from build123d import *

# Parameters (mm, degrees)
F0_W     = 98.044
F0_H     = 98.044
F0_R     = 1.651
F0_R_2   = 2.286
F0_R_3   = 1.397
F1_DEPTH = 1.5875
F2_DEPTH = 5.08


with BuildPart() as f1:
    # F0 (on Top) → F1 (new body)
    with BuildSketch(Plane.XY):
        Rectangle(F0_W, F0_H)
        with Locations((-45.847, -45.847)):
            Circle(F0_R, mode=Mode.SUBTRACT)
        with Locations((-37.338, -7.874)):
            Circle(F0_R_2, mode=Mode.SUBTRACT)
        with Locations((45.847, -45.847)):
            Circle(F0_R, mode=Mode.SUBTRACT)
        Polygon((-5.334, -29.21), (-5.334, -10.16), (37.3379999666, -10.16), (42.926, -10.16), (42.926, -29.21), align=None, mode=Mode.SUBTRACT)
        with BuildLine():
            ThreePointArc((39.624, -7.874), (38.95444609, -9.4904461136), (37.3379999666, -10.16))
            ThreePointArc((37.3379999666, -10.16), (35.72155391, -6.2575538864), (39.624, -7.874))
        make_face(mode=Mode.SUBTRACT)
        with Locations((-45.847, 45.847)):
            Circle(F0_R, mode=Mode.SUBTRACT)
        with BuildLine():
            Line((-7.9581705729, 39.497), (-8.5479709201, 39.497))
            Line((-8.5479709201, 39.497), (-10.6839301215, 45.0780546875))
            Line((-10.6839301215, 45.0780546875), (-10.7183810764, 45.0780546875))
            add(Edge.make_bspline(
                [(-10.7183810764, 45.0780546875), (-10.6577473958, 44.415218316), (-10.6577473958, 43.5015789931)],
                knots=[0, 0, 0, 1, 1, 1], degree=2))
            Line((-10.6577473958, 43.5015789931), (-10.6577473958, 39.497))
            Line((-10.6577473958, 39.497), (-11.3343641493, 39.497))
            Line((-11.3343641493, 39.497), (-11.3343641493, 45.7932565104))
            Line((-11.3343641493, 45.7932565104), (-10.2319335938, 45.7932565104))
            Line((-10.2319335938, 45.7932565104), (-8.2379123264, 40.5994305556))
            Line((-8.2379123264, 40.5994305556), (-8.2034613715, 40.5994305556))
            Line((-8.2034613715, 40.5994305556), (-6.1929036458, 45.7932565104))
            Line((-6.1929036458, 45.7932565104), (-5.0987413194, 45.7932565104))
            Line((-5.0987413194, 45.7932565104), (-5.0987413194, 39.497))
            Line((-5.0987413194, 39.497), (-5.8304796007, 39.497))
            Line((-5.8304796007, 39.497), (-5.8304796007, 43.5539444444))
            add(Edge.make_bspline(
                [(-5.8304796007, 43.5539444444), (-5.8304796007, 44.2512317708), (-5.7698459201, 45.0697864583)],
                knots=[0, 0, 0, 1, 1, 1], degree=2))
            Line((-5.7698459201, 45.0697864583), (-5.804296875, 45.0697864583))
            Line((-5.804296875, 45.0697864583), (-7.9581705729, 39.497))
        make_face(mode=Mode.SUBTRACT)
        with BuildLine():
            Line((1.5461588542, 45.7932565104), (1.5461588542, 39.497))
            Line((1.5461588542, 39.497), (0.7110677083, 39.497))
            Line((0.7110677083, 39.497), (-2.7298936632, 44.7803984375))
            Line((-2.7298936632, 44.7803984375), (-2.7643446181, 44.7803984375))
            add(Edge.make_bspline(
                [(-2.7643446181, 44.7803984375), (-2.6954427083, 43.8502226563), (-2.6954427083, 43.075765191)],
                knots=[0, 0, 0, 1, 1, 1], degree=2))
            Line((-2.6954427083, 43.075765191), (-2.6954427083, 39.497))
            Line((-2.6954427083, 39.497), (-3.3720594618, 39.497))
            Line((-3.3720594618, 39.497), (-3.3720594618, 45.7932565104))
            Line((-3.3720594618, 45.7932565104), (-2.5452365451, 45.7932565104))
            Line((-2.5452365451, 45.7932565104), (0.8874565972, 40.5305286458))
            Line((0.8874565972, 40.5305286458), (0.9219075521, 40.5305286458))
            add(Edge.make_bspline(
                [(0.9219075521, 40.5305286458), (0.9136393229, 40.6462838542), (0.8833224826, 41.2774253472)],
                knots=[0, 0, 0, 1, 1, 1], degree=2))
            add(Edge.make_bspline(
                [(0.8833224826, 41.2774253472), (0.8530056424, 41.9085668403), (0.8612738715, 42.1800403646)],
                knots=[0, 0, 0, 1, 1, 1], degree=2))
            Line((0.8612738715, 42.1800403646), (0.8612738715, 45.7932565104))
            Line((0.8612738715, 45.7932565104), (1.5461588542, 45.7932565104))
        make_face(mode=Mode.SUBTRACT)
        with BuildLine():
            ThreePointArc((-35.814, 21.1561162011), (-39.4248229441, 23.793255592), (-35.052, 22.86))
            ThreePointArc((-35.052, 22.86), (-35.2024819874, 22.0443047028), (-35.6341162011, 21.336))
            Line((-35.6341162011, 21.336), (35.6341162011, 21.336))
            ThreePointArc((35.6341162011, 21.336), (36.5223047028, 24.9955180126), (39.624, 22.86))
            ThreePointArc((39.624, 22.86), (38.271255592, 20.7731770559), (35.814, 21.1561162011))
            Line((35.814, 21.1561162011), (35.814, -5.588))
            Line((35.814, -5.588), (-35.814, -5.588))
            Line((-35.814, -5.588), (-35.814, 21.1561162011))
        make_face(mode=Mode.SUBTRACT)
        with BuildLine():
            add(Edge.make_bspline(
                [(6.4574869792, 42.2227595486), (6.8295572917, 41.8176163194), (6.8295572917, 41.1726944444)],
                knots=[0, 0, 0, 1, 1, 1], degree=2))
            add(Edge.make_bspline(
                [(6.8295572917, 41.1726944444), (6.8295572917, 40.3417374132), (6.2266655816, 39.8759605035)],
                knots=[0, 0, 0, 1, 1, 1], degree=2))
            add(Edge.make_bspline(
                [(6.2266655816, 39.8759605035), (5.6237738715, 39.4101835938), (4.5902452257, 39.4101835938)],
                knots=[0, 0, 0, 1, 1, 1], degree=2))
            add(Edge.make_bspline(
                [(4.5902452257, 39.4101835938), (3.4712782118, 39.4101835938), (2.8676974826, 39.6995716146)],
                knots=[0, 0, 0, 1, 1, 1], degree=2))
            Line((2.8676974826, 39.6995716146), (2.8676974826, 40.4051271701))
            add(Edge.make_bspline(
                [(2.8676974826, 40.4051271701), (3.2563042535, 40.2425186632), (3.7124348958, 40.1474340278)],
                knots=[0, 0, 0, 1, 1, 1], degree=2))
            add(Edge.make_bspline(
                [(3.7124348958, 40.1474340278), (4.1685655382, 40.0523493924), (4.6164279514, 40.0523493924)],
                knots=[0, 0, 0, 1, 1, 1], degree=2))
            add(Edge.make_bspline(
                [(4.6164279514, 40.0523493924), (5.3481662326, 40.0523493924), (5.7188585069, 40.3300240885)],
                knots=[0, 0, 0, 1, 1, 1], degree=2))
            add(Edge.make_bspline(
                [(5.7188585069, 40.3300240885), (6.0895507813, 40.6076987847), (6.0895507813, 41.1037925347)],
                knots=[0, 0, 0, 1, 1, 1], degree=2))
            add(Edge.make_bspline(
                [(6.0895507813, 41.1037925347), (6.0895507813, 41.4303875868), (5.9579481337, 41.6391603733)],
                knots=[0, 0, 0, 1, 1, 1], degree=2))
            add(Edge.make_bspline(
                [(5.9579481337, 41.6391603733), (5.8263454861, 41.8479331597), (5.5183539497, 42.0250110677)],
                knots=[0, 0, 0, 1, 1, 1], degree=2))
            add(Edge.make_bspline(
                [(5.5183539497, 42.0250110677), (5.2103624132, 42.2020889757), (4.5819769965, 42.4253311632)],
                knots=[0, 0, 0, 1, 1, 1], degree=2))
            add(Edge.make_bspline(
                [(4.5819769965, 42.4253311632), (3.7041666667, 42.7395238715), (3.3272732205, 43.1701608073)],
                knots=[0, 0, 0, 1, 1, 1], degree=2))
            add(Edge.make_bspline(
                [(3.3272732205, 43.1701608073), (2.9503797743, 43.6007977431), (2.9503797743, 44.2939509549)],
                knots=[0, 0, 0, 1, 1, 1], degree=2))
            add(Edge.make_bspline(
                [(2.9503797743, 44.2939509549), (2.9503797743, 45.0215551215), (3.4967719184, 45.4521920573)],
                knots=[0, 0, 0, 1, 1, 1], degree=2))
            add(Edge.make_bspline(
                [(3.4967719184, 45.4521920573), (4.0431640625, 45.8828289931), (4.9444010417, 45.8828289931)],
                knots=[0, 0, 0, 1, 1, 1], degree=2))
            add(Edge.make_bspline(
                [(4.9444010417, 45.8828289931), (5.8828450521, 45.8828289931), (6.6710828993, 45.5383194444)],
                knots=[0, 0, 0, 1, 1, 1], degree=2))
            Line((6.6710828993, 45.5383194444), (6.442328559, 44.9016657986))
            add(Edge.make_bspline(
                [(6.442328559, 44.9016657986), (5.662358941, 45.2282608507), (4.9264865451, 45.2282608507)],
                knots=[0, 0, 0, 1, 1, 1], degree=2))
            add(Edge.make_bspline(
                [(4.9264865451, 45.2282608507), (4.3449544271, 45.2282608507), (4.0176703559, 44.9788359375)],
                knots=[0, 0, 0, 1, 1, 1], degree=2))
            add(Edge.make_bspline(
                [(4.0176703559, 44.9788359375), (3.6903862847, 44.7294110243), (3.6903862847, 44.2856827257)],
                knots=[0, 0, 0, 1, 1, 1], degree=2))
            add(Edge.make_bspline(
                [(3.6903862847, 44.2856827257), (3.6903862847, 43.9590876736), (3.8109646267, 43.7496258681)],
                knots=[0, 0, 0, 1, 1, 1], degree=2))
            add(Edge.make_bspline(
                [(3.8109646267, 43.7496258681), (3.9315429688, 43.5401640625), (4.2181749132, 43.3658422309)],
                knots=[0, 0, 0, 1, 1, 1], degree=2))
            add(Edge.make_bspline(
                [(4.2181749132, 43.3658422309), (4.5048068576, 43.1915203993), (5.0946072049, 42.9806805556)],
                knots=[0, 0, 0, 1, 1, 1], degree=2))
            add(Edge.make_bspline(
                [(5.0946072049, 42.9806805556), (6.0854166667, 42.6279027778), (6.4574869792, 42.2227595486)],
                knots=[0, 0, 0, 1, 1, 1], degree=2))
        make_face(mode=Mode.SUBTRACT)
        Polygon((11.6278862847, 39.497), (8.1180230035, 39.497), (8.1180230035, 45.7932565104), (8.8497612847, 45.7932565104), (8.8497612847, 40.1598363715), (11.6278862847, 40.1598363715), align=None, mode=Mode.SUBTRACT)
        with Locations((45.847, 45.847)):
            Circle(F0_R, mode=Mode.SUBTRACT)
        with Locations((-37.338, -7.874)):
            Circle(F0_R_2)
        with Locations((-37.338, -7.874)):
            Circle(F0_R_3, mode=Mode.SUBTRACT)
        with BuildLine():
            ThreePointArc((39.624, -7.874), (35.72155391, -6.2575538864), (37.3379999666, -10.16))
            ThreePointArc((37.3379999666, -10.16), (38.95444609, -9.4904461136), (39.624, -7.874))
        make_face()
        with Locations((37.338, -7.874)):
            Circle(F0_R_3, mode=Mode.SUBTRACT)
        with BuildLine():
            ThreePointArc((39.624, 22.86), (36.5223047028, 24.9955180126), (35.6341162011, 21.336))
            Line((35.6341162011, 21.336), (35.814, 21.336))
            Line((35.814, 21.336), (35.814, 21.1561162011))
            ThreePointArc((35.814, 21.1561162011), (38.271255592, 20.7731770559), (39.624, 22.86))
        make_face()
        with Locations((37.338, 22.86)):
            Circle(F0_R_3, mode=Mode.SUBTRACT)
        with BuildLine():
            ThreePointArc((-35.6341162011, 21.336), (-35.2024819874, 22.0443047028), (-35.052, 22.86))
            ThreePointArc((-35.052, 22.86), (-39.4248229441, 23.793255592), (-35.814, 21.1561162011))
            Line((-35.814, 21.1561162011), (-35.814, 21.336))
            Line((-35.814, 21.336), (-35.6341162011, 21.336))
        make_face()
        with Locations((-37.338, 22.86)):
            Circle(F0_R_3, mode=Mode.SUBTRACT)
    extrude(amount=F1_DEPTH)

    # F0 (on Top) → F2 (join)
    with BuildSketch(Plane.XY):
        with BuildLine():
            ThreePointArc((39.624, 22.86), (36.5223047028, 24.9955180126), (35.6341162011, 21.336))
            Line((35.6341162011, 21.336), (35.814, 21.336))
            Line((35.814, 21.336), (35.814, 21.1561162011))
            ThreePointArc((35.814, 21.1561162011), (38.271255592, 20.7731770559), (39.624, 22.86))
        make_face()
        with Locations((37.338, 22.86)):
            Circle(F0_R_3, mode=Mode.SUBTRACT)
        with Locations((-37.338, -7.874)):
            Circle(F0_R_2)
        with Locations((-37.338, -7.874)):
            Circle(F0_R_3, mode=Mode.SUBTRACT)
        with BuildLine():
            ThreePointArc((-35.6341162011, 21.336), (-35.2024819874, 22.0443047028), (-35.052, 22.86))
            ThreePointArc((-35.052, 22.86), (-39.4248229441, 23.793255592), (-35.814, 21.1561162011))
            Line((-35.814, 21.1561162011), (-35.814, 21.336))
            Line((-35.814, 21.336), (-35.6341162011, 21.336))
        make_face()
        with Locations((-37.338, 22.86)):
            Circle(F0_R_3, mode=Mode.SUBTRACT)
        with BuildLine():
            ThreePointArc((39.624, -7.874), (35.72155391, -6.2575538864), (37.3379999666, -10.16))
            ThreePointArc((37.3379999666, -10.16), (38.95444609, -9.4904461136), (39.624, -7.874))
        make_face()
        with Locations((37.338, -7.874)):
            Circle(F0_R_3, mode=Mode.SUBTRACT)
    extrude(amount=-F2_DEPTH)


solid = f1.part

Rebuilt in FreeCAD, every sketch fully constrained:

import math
import FreeCAD as App
import Part
import Sketcher

V = App.Vector
Q = App.Units.Quantity

doc = App.newDocument("Part")
body = doc.addObject("PartDesign::Body", "Body")

sketch1 = body.newObject("Sketcher::SketchObject", "Sketch")
sketch1.AttachmentSupport = (doc.getObject("XY_Plane"), [""])
sketch1.MapMode = "FlatFace"
sketch1.addGeometry(Part.LineSegment(V(-49.022, 49.022, 0), V(-49.022, -49.022, 0)), False)
sketch1.addGeometry(Part.LineSegment(V(-49.022, -49.022, 0), V(49.022, -49.022, 0)), False)
sketch1.addGeometry(Part.LineSegment(V(49.022, -49.022, 0), V(49.022, 49.022, 0)), False)
sketch1.addGeometry(Part.LineSegment(V(49.022, 49.022, 0), V(-49.022, 49.022, 0)), False)
sketch1.addGeometry(Part.Circle(V(-45.847, -45.847, 0), V(0, 0, 1), 1.651), False)
sketch1.addGeometry(Part.Circle(V(-37.338, -7.874, 0), V(0, 0, 1), 1.397), False)
sketch1.addGeometry(Part.Circle(V(45.847, -45.847, 0), V(0, 0, 1), 1.651), False)
sketch1.addGeometry(Part.LineSegment(V(-5.334, -29.21, 0), V(-5.334, -10.16, 0)), False)
sketch1.addGeometry(Part.LineSegment(V(-5.334, -10.16, 0), V(42.926, -10.16, 0)), False)
sketch1.addGeometry(Part.LineSegment(V(42.926, -10.16, 0), V(42.926, -29.21, 0)), False)
sketch1.addGeometry(Part.LineSegment(V(42.926, -29.21, 0), V(-5.334, -29.21, 0)), False)
sketch1.addGeometry(Part.Circle(V(37.338, -7.874, 0), V(0, 0, 1), 1.397), False)
sketch1.addGeometry(Part.Circle(V(-37.338, 22.86, 0), V(0, 0, 1), 1.397), False)
sketch1.addGeometry(Part.Circle(V(-45.847, 45.847, 0), V(0, 0, 1), 1.651), False)
sketch1.addGeometry(Part.LineSegment(V(-5.804297, 45.069786, 0), V(-7.958171, 39.497, 0)), False)
sketch1.addGeometry(Part.LineSegment(V(-7.958171, 39.497, 0), V(-8.547971, 39.497, 0)), False)
sketch1.addGeometry(Part.LineSegment(V(-8.547971, 39.497, 0), V(-10.68393, 45.078055, 0)), False)
sketch1.addGeometry(Part.LineSegment(V(-10.68393, 45.078055, 0), V(-10.718381, 45.078055, 0)), False)
sketch1.addGeometry(Part.BSplineCurve([V(-10.718381, 45.078055, 0), V(-10.657747, 44.415218, 0), V(-10.657747, 43.501579, 0)], [3, 3], [0, 1], False, 2, [1, 1, 1], False), False)
sketch1.addGeometry(Part.LineSegment(V(-10.657747, 43.501579, 0), V(-10.657747, 39.497, 0)), False)
sketch1.addGeometry(Part.LineSegment(V(-10.657747, 39.497, 0), V(-11.334364, 39.497, 0)), False)
sketch1.addGeometry(Part.LineSegment(V(-11.334364, 39.497, 0), V(-11.334364, 45.793257, 0)), False)
sketch1.addGeometry(Part.LineSegment(V(-11.334364, 45.793257, 0), V(-10.231934, 45.793257, 0)), False)
sketch1.addGeometry(Part.LineSegment(V(-10.231934, 45.793257, 0), V(-8.237912, 40.599431, 0)), False)
sketch1.addGeometry(Part.LineSegment(V(-8.237912, 40.599431, 0), V(-8.203461, 40.599431, 0)), False)
sketch1.addGeometry(Part.LineSegment(V(-8.203461, 40.599431, 0), V(-6.192904, 45.793257, 0)), False)
sketch1.addGeometry(Part.LineSegment(V(-6.192904, 45.793257, 0), V(-5.098741, 45.793257, 0)), False)
sketch1.addGeometry(Part.LineSegment(V(-5.098741, 45.793257, 0), V(-5.098741, 39.497, 0)), False)
sketch1.addGeometry(Part.LineSegment(V(-5.098741, 39.497, 0), V(-5.83048, 39.497, 0)), False)
sketch1.addGeometry(Part.LineSegment(V(-5.83048, 39.497, 0), V(-5.83048, 43.553944, 0)), False)
sketch1.addGeometry(Part.BSplineCurve([V(-5.83048, 43.553944, 0), V(-5.83048, 44.251232, 0), V(-5.769846, 45.069786, 0)], [3, 3], [0, 1], False, 2, [1, 1, 1], False), False)
sketch1.addGeometry(Part.LineSegment(V(-5.769846, 45.069786, 0), V(-5.804297, 45.069786, 0)), False)
sketch1.addGeometry(Part.LineSegment(V(0.861274, 45.793257, 0), V(1.546159, 45.793257, 0)), False)
sketch1.addGeometry(Part.LineSegment(V(1.546159, 45.793257, 0), V(1.546159, 39.497, 0)), False)
sketch1.addGeometry(Part.LineSegment(V(1.546159, 39.497, 0), V(0.711068, 39.497, 0)), False)
sketch1.addGeometry(Part.LineSegment(V(0.711068, 39.497, 0), V(-2.729894, 44.780398, 0)), False)
sketch1.addGeometry(Part.LineSegment(V(-2.729894, 44.780398, 0), V(-2.764345, 44.780398, 0)), False)
sketch1.addGeometry(Part.BSplineCurve([V(-2.764345, 44.780398, 0), V(-2.695443, 43.850223, 0), V(-2.695443, 43.075765, 0)], [3, 3], [0, 1], False, 2, [1, 1, 1], False), False)
sketch1.addGeometry(Part.LineSegment(V(-2.695443, 43.075765, 0), V(-2.695443, 39.497, 0)), False)
sketch1.addGeometry(Part.LineSegment(V(-2.695443, 39.497, 0), V(-3.372059, 39.497, 0)), False)
sketch1.addGeometry(Part.LineSegment(V(-3.372059, 39.497, 0), V(-3.372059, 45.793257, 0)), False)
sketch1.addGeometry(Part.LineSegment(V(-3.372059, 45.793257, 0), V(-2.545237, 45.793257, 0)), False)
sketch1.addGeometry(Part.LineSegment(V(-2.545237, 45.793257, 0), V(0.887457, 40.530529, 0)), False)
sketch1.addGeometry(Part.LineSegment(V(0.887457, 40.530529, 0), V(0.921908, 40.530529, 0)), False)
sketch1.addGeometry(Part.BSplineCurve([V(0.921908, 40.530529, 0), V(0.913639, 40.646284, 0), V(0.883322, 41.277425, 0)], [3, 3], [0, 1], False, 2, [1, 1, 1], False), False)
sketch1.addGeometry(Part.BSplineCurve([V(0.883322, 41.277425, 0), V(0.853006, 41.908567, 0), V(0.861274, 42.18004, 0)], [3, 3], [0, 1], False, 2, [1, 1, 1], False), False)
sketch1.addGeometry(Part.LineSegment(V(0.861274, 42.18004, 0), V(0.861274, 45.793257, 0)), False)
sketch1.addGeometry(Part.LineSegment(V(-35.814, -5.588, 0), V(-35.814, 21.336, 0)), False)
sketch1.addGeometry(Part.LineSegment(V(-35.814, 21.336, 0), V(35.814, 21.336, 0)), False)
sketch1.addGeometry(Part.LineSegment(V(35.814, 21.336, 0), V(35.814, -5.588, 0)), False)
sketch1.addGeometry(Part.LineSegment(V(35.814, -5.588, 0), V(-35.814, -5.588, 0)), False)
sketch1.addGeometry(Part.Circle(V(37.338, 22.86, 0), V(0, 0, 1), 1.397), False)
sketch1.addGeometry(Part.BSplineCurve([V(5.094607, 42.980681, 0), V(6.085417, 42.627903, 0), V(6.829557, 41.817616, 0), V(6.829557, 40.341737, 0), V(5.623774, 39.410184, 0), V(3.471278, 39.410184, 0), V(2.867697, 39.699572, 0)], [3, 1, 1, 1, 1, 3], [0, 1, 2, 3.288461538, 4.576923077, 5.971897436], False, 2, [1, 1, 1, 1, 1, 1, 1], False), False)
sketch1.addGeometry(Part.LineSegment(V(2.867697, 39.699572, 0), V(2.867697, 40.405127, 0)), False)
sketch1.addGeometry(Part.BSplineCurve([V(2.867697, 40.405127, 0), V(3.256304, 40.242519, 0), V(3.712435, 40.147434, 0)], [3, 3], [0, 1], False, 2, [1, 1, 1], False), False)
sketch1.addGeometry(Part.BSplineCurve([V(3.712435, 40.147434, 0), V(4.168566, 40.052349, 0), V(5.348166, 40.052349, 0), V(5.718859, 40.330024, 0)], [3, 1, 3], [0, 1, 2.633846154], False, 2, [1, 1, 1, 1], False), False)
sketch1.addGeometry(Part.BSplineCurve([V(5.718859, 40.330024, 0), V(6.089551, 40.607699, 0), V(6.089551, 41.430388, 0), V(5.957948, 41.63916, 0)], [3, 1, 3], [0, 1, 1.658333333], False, 2, [1, 1, 1, 1], False), False)
sketch1.addGeometry(Part.BSplineCurve([V(5.957948, 41.63916, 0), V(5.826345, 41.847933, 0), V(5.518354, 42.025011, 0)], [3, 3], [0, 1], False, 2, [1, 1, 1], False), False)
sketch1.addGeometry(Part.BSplineCurve([V(5.518354, 42.025011, 0), V(5.210362, 42.202089, 0), V(4.581977, 42.425331, 0)], [3, 3], [0, 1], False, 2, [1, 1, 1], False), False)
sketch1.addGeometry(Part.BSplineCurve([V(4.581977, 42.425331, 0), V(3.704167, 42.739524, 0), V(2.95038, 43.600798, 0), V(2.95038, 45.021555, 0), V(4.043164, 45.882829, 0), V(5.882845, 45.882829, 0), V(6.671083, 45.538319, 0)], [3, 1, 1, 1, 1, 3], [0, 1, 2, 3.049701789, 4.099403578, 5.19244168], False, 2, [1, 1, 1, 1, 1, 1, 1], False), False)
sketch1.addGeometry(Part.LineSegment(V(6.671083, 45.538319, 0), V(6.442329, 44.901666, 0)), False)
sketch1.addGeometry(Part.BSplineCurve([V(6.442329, 44.901666, 0), V(5.662359, 45.228261, 0), V(4.344954, 45.228261, 0), V(3.690386, 44.729411, 0), V(3.690386, 43.959088, 0), V(3.810965, 43.749626, 0)], [3, 1, 1, 1, 3], [0, 1, 1.790262172, 2.580524344, 3.162176937], False, 2, [1, 1, 1, 1, 1, 1], False), False)
sketch1.addGeometry(Part.BSplineCurve([V(3.810965, 43.749626, 0), V(3.931543, 43.540164, 0), V(4.504807, 43.19152, 0), V(5.094607, 42.980681, 0)], [3, 1, 3], [0, 1, 2], False, 2, [1, 1, 1, 1], False), False)
sketch1.addGeometry(Part.LineSegment(V(11.627886, 40.159836, 0), V(11.627886, 39.497, 0)), False)
sketch1.addGeometry(Part.LineSegment(V(11.627886, 39.497, 0), V(8.118023, 39.497, 0)), False)
sketch1.addGeometry(Part.LineSegment(V(8.118023, 39.497, 0), V(8.118023, 45.793257, 0)), False)
sketch1.addGeometry(Part.LineSegment(V(8.118023, 45.793257, 0), V(8.849761, 45.793257, 0)), False)
sketch1.addGeometry(Part.LineSegment(V(8.849761, 45.793257, 0), V(8.849761, 40.159836, 0)), False)
sketch1.addGeometry(Part.LineSegment(V(8.849761, 40.159836, 0), V(11.627886, 40.159836, 0)), False)
sketch1.addGeometry(Part.Circle(V(45.847, 45.847, 0), V(0, 0, 1), 1.651), False)
sketch1.addConstraint(Sketcher.Constraint("Block", 18))
sketch1.addConstraint(Sketcher.Constraint("Block", 30))
sketch1.addConstraint(Sketcher.Constraint("Block", 37))
sketch1.addConstraint(Sketcher.Constraint("Block", 44))
sketch1.addConstraint(Sketcher.Constraint("Block", 45))
sketch1.addConstraint(Sketcher.Constraint("Block", 52))
sketch1.addConstraint(Sketcher.Constraint("Block", 54))
sketch1.addConstraint(Sketcher.Constraint("Block", 55))
sketch1.addConstraint(Sketcher.Constraint("Block", 56))
sketch1.addConstraint(Sketcher.Constraint("Block", 57))
sketch1.addConstraint(Sketcher.Constraint("Block", 58))
sketch1.addConstraint(Sketcher.Constraint("Block", 59))
sketch1.addConstraint(Sketcher.Constraint("Block", 61))
sketch1.addConstraint(Sketcher.Constraint("Block", 62))
sketch1.addConstraint(Sketcher.Constraint("Coincident", 0, 2, 1, 1))
sketch1.addConstraint(Sketcher.Constraint("Coincident", 1, 2, 2, 1))
sketch1.addConstraint(Sketcher.Constraint("Coincident", 2, 2, 3, 1))
sketch1.addConstraint(Sketcher.Constraint("Coincident", 3, 2, 0, 1))
sketch1.addConstraint(Sketcher.Constraint("Coincident", 7, 2, 8, 1))
sketch1.addConstraint(Sketcher.Constraint("Coincident", 8, 2, 9, 1))
sketch1.addConstraint(Sketcher.Constraint("Coincident", 9, 2, 10, 1))
sketch1.addConstraint(Sketcher.Constraint("Coincident", 10, 2, 7, 1))
sketch1.addConstraint(Sketcher.Constraint("Coincident", 14, 2, 15, 1))
sketch1.addConstraint(Sketcher.Constraint("Coincident", 15, 2, 16, 1))
sketch1.addConstraint(Sketcher.Constraint("Coincident", 16, 2, 17, 1))
sketch1.addConstraint(Sketcher.Constraint("Coincident", 17, 2, 18, 1))
sketch1.addConstraint(Sketcher.Constraint("Coincident", 18, 2, 19, 1))
sketch1.addConstraint(Sketcher.Constraint("Coincident", 19, 2, 20, 1))
sketch1.addConstraint(Sketcher.Constraint("Coincident", 20, 2, 21, 1))
sketch1.addConstraint(Sketcher.Constraint("Coincident", 21, 2, 22, 1))
sketch1.addConstraint(Sketcher.Constraint("Coincident", 22, 2, 23, 1))
sketch1.addConstraint(Sketcher.Constraint("Coincident", 23, 2, 24, 1))
sketch1.addConstraint(Sketcher.Constraint("Coincident", 24, 2, 25, 1))
sketch1.addConstraint(Sketcher.Constraint("Coincident", 25, 2, 26, 1))
sketch1.addConstraint(Sketcher.Constraint("Coincident", 26, 2, 27, 1))
sketch1.addConstraint(Sketcher.Constraint("Coincident", 27, 2, 28, 1))
sketch1.addConstraint(Sketcher.Constraint("Coincident", 28, 2, 29, 1))
sketch1.addConstraint(Sketcher.Constraint("Coincident", 29, 2, 30, 1))
sketch1.addConstraint(Sketcher.Constraint("Coincident", 30, 2, 31, 1))
sketch1.addConstraint(Sketcher.Constraint("Coincident", 31, 2, 14, 1))
sketch1.addConstraint(Sketcher.Constraint("Coincident", 32, 2, 33, 1))
sketch1.addConstraint(Sketcher.Constraint("Coincident", 33, 2, 34, 1))
sketch1.addConstraint(Sketcher.Constraint("Coincident", 34, 2, 35, 1))
sketch1.addConstraint(Sketcher.Constraint("Coincident", 35, 2, 36, 1))
sketch1.addConstraint(Sketcher.Constraint("Coincident", 36, 2, 37, 1))
sketch1.addConstraint(Sketcher.Constraint("Coincident", 37, 2, 38, 1))
sketch1.addConstraint(Sketcher.Constraint("Coincident", 38, 2, 39, 1))
sketch1.addConstraint(Sketcher.Constraint("Coincident", 39, 2, 40, 1))
sketch1.addConstraint(Sketcher.Constraint("Coincident", 40, 2, 41, 1))
sketch1.addConstraint(Sketcher.Constraint("Coincident", 41, 2, 42, 1))
sketch1.addConstraint(Sketcher.Constraint("Coincident", 42, 2, 43, 1))
sketch1.addConstraint(Sketcher.Constraint("Coincident", 43, 2, 44, 1))
sketch1.addConstraint(Sketcher.Constraint("Coincident", 45, 2, 46, 1))
sketch1.addConstraint(Sketcher.Constraint("Coincident", 46, 2, 32, 1))
sketch1.addConstraint(Sketcher.Constraint("Coincident", 47, 2, 48, 1))
sketch1.addConstraint(Sketcher.Constraint("Coincident", 48, 2, 49, 1))
sketch1.addConstraint(Sketcher.Constraint("Coincident", 49, 2, 50, 1))
sketch1.addConstraint(Sketcher.Constraint("Coincident", 50, 2, 47, 1))
sketch1.addConstraint(Sketcher.Constraint("Coincident", 52, 2, 53, 1))
sketch1.addConstraint(Sketcher.Constraint("Coincident", 53, 2, 54, 1))
sketch1.addConstraint(Sketcher.Constraint("Coincident", 59, 2, 60, 1))
sketch1.addConstraint(Sketcher.Constraint("Coincident", 60, 2, 61, 1))
sketch1.addConstraint(Sketcher.Constraint("Coincident", 63, 2, 64, 1))
sketch1.addConstraint(Sketcher.Constraint("Coincident", 64, 2, 65, 1))
sketch1.addConstraint(Sketcher.Constraint("Coincident", 65, 2, 66, 1))
sketch1.addConstraint(Sketcher.Constraint("Coincident", 66, 2, 67, 1))
sketch1.addConstraint(Sketcher.Constraint("Coincident", 67, 2, 68, 1))
sketch1.addConstraint(Sketcher.Constraint("Coincident", 68, 2, 63, 1))
sketch1.addConstraint(Sketcher.Constraint("Vertical", 0))
sketch1.addConstraint(Sketcher.Constraint("Horizontal", 1))
sketch1.addConstraint(Sketcher.Constraint("Vertical", 2))
sketch1.addConstraint(Sketcher.Constraint("Horizontal", 3))
sketch1.addConstraint(Sketcher.Constraint("Vertical", 7))
sketch1.addConstraint(Sketcher.Constraint("Horizontal", 8))
sketch1.addConstraint(Sketcher.Constraint("Vertical", 9))
sketch1.addConstraint(Sketcher.Constraint("Horizontal", 10))
sketch1.addConstraint(Sketcher.Constraint("Horizontal", 15))
sketch1.addConstraint(Sketcher.Constraint("Horizontal", 17))
sketch1.addConstraint(Sketcher.Constraint("Vertical", 19))
sketch1.addConstraint(Sketcher.Constraint("Horizontal", 20))
sketch1.addConstraint(Sketcher.Constraint("Vertical", 21))
sketch1.addConstraint(Sketcher.Constraint("Horizontal", 22))
sketch1.addConstraint(Sketcher.Constraint("Horizontal", 24))
sketch1.addConstraint(Sketcher.Constraint("Horizontal", 26))
sketch1.addConstraint(Sketcher.Constraint("Vertical", 27))
sketch1.addConstraint(Sketcher.Constraint("Horizontal", 28))
sketch1.addConstraint(Sketcher.Constraint("Vertical", 29))
sketch1.addConstraint(Sketcher.Constraint("Horizontal", 31))
sketch1.addConstraint(Sketcher.Constraint("Horizontal", 32))
sketch1.addConstraint(Sketcher.Constraint("Vertical", 33))
sketch1.addConstraint(Sketcher.Constraint("Horizontal", 34))
sketch1.addConstraint(Sketcher.Constraint("Horizontal", 36))
sketch1.addConstraint(Sketcher.Constraint("Vertical", 38))
sketch1.addConstraint(Sketcher.Constraint("Horizontal", 39))
sketch1.addConstraint(Sketcher.Constraint("Vertical", 40))
sketch1.addConstraint(Sketcher.Constraint("Horizontal", 41))
sketch1.addConstraint(Sketcher.Constraint("Horizontal", 43))
sketch1.addConstraint(Sketcher.Constraint("Vertical", 46))
sketch1.addConstraint(Sketcher.Constraint("Vertical", 47))
sketch1.addConstraint(Sketcher.Constraint("Horizontal", 48))
sketch1.addConstraint(Sketcher.Constraint("Vertical", 49))
sketch1.addConstraint(Sketcher.Constraint("Horizontal", 50))
sketch1.addConstraint(Sketcher.Constraint("Vertical", 63))
sketch1.addConstraint(Sketcher.Constraint("Horizontal", 64))
sketch1.addConstraint(Sketcher.Constraint("Vertical", 65))
sketch1.addConstraint(Sketcher.Constraint("Horizontal", 66))
sketch1.addConstraint(Sketcher.Constraint("Vertical", 67))
sketch1.addConstraint(Sketcher.Constraint("Horizontal", 68))
sketch1.addConstraint(Sketcher.Constraint("Equal", 4, 6))
sketch1.addConstraint(Sketcher.Constraint("Equal", 5, 11))
sketch1.addConstraint(Sketcher.Constraint("Equal", 11, 12))
sketch1.addConstraint(Sketcher.Constraint("Equal", 6, 13))
sketch1.addConstraint(Sketcher.Constraint("Equal", 12, 51))
sketch1.addConstraint(Sketcher.Constraint("Equal", 13, 69))
sketch1.addConstraint(Sketcher.Constraint("Symmetric", 6, 3, 13, 3, -1, 1))
sketch1.addConstraint(Sketcher.Constraint("Symmetric", 4, 3, 69, 3, -1, 1))
sketch1.addConstraint(Sketcher.Constraint("Symmetric", 0, 2, 2, 2, -1, 1))
sketch1.addConstraint(Sketcher.Constraint("Symmetric", 4, 3, 6, 3, -2))
sketch1.addConstraint(Sketcher.Constraint("Symmetric", 5, 3, 11, 3, -2))
sketch1.addConstraint(Sketcher.Constraint("Symmetric", 12, 3, 51, 3, -2))
sketch1.addConstraint(Sketcher.Constraint("Horizontal", 15, 2, 19, 2))
sketch1.addConstraint(Sketcher.Constraint("Horizontal", 22, 2, 25, 2))
sketch1.addConstraint(Sketcher.Constraint("Horizontal", 20, 2, 27, 2))
sketch1.addConstraint(Sketcher.Constraint("Horizontal", 26, 2, 32, 2))
sketch1.addConstraint(Sketcher.Constraint("Horizontal", 28, 2, 33, 2))
sketch1.addConstraint(Sketcher.Constraint("Horizontal", 34, 2, 38, 2))
sketch1.addConstraint(Sketcher.Constraint("Horizontal", 32, 2, 40, 2))
sketch1.addConstraint(Sketcher.Constraint("Horizontal", 39, 2, 63, 2))
sketch1.addConstraint(Sketcher.Constraint("Horizontal", 46, 2, 65, 2))
sketch1.addConstraint(Sketcher.Constraint("Vertical", 5, 3, 12, 3))
sketch1.addConstraint(Sketcher.Constraint("Equal", 17, 24))
sketch1.addConstraint(Sketcher.Constraint("Equal", 24, 31))
sketch1.addConstraint(Sketcher.Constraint("Equal", 31, 36))
sketch1.addConstraint(Sketcher.Constraint("Equal", 20, 39))
sketch1.addConstraint(Sketcher.Constraint("Equal", 36, 43))
sketch1.addConstraint(Sketcher.Constraint("Equal", 28, 66))
sketch1.addConstraint(Sketcher.Constraint("Equal", 3, 0))
sketch1.addConstraint(Sketcher.Constraint("Diameter", 4, Q("0.13 in")))
sketch1.addConstraint(Sketcher.Constraint("Diameter", 5, Q("0.11 in")))
sketch1.addConstraint(Sketcher.Constraint("DistanceX", 8, 1, 8, 2, Q("1.9 in")))
sketch1.addConstraint(Sketcher.Constraint("DistanceX", 1, 1, 1, 2, Q("3.86 in")))
sketch1.addConstraint(Sketcher.Constraint("DistanceX", 48, 1, 48, 2, Q("2.82 in")))
sketch1.addConstraint(Sketcher.Constraint("DistanceY", 7, 1, 7, 2, Q("0.75 in")))
sketch1.addConstraint(Sketcher.Constraint("DistanceY", 47, 1, 47, 2, Q("1.06 in")))
sketch1.addConstraint(Sketcher.Constraint("DistanceY", -1, 1, 12, 3, Q("0.9 in")))
sketch1.addConstraint(Sketcher.Constraint("DistanceY", 7, 2, -1, 1, Q("0.4 in")))
sketch1.addConstraint(Sketcher.Constraint("DistanceX", 12, 3, 2, 2, Q("3.4 in")))
sketch1.addConstraint(Sketcher.Constraint("DistanceX", 50, 2, 7, 2, Q("1.2 in")))
sketch1.addConstraint(Sketcher.Constraint("DistanceX", 68, 1, 68, 2, Q("0.109375 in")))
sketch1.addConstraint(Sketcher.Constraint("DistanceY", 5, 3, -1, 1, Q("0.31 in")))
sketch1.addConstraint(Sketcher.Constraint("DistanceX", 7, 2, -1, 1, Q("0.21 in")))
sketch1.addConstraint(Sketcher.Constraint("DistanceY", -1, 1, 47, 2, Q("0.84 in")))
sketch1.addConstraint(Sketcher.Constraint("DistanceX", 4, 3, 6, 3, Q("3.61 in")))
sketch1.addConstraint(Sketcher.Constraint("DistanceY", 4, 3, 13, 3, Q("3.61 in")))
sketch1.addConstraint(Sketcher.Constraint("DistanceY", 14, 2, 13, 3, Q("0.25 in")))
sketch1.addConstraint(Sketcher.Constraint("DistanceX", 15, 2, 15, 1, 0.5898))
sketch1.addConstraint(Sketcher.Constraint("DistanceX", 16, 2, 23, 2, Q("0.0962999 in")))
sketch1.addConstraint(Sketcher.Constraint("DistanceX", 17, 2, 17, 1, 0.034451))
sketch1.addConstraint(Sketcher.Constraint("DistanceX", 22, 1, 22, 2, 1.102431))
sketch1.addConstraint(Sketcher.Constraint("DistanceX", 28, 2, 28, 1, 0.731738))
sketch1.addConstraint(Sketcher.Constraint("DistanceX", 34, 2, 34, 1, 0.835091))
sketch1.addConstraint(Sketcher.Constraint("DistanceY", 67, 2, 67, 1, 5.63342))
sketch1.addConstraint(Sketcher.Constraint("DistanceY", 17, 2, 21, 2, 0.715202))
sketch1.addConstraint(Sketcher.Constraint("DistanceX", 26, 2, 32, 2, 6.6449))
sketch1.addConstraint(Sketcher.Constraint("Distance", 14, 5.974539))
sketch1.addConstraint(Sketcher.Constraint("DistanceX", 20, 2, 20, 1, 0.676617))
sketch1.addConstraint(Sketcher.Constraint("DistanceX", 26, 1, 26, 2, 1.094162))
sketch1.addConstraint(Sketcher.Constraint("DistanceX", 41, 1, 41, 2, 0.826823))
sketch1.addConstraint(Sketcher.Constraint("DistanceY", -1, 1, 23, 2, 40.599431))
sketch1.addConstraint(Sketcher.Constraint("DistanceX", -1, 1, 66, 2, 8.849761))
pad1 = body.newObject("PartDesign::Pad", "Pad")
pad1.Profile = sketch1
pad1.Length = Q("0.0625 in")

sketch2 = body.newObject("Sketcher::SketchObject", "Sketch001")
sketch2.AttachmentSupport = (doc.getObject("XY_Plane"), [""])
sketch2.MapMode = "FlatFace"
sketch2.addGeometry(Part.ArcOfCircle(Part.Circle(V(37.338, 22.86, 0), V(0, 0, 1), 2.286), math.radians(0), math.radians(221.810315)), False)
sketch2.addGeometry(Part.LineSegment(V(35.634116, 21.336, 0), V(35.814, 21.336, 0)), False)
sketch2.addGeometry(Part.LineSegment(V(35.814, 21.336, 0), V(35.814, 21.156116, 0)), False)
sketch2.addGeometry(Part.ArcOfCircle(Part.Circle(V(37.338, 22.86, 0), V(0, 0, 1), 2.286), math.radians(-131.810315), math.radians(0)), False)
sketch2.addGeometry(Part.Circle(V(37.338, 22.86, 0), V(0, 0, 1), 1.397), False)
sketch2.addGeometry(Part.Circle(V(-37.338, -7.874, 0), V(0, 0, 1), 2.286), False)
sketch2.addGeometry(Part.Circle(V(-37.338, -7.874, 0), V(0, 0, 1), 1.397), False)
sketch2.addGeometry(Part.ArcOfCircle(Part.Circle(V(-37.338, 22.86, 0), V(0, 0, 1), 2.286), math.radians(-41.810315), math.radians(0)), False)
sketch2.addGeometry(Part.ArcOfCircle(Part.Circle(V(-37.338, 22.86, 0), V(0, 0, 1), 2.286), math.radians(0), math.radians(311.810315)), False)
sketch2.addGeometry(Part.LineSegment(V(-35.814, 21.156116, 0), V(-35.814, 21.336, 0)), False)
sketch2.addGeometry(Part.LineSegment(V(-35.814, 21.336, 0), V(-35.634116, 21.336, 0)), False)
sketch2.addGeometry(Part.Circle(V(-37.338, 22.86, 0), V(0, 0, 1), 1.397), False)
sketch2.addGeometry(Part.ArcOfCircle(Part.Circle(V(37.338, -7.874, 0), V(0, 0, 1), 2.286), math.radians(0), math.radians(269.999999)), False)
sketch2.addGeometry(Part.ArcOfCircle(Part.Circle(V(37.338, -7.874, 0), V(0, 0, 1), 2.286), math.radians(-90.000001), math.radians(0)), False)
sketch2.addGeometry(Part.Circle(V(37.338, -7.874, 0), V(0, 0, 1), 1.397), False)
sketch2.addConstraint(Sketcher.Constraint("Coincident", 0, 2, 1, 1))
sketch2.addConstraint(Sketcher.Constraint("Coincident", 1, 2, 2, 1))
sketch2.addConstraint(Sketcher.Constraint("Coincident", 2, 2, 3, 1))
sketch2.addConstraint(Sketcher.Constraint("Tangent", 3, 2, 0, 1))
sketch2.addConstraint(Sketcher.Constraint("Tangent", 7, 2, 8, 1))
sketch2.addConstraint(Sketcher.Constraint("Coincident", 8, 2, 9, 1))
sketch2.addConstraint(Sketcher.Constraint("Coincident", 9, 2, 10, 1))
sketch2.addConstraint(Sketcher.Constraint("Coincident", 10, 2, 7, 1))
sketch2.addConstraint(Sketcher.Constraint("Tangent", 12, 1, 13, 2))
sketch2.addConstraint(Sketcher.Constraint("Coincident", 13, 1, 12, 2))
sketch2.addConstraint(Sketcher.Constraint("Horizontal", 1))
sketch2.addConstraint(Sketcher.Constraint("Vertical", 2))
sketch2.addConstraint(Sketcher.Constraint("Vertical", 9))
sketch2.addConstraint(Sketcher.Constraint("Horizontal", 10))
sketch2.addConstraint(Sketcher.Constraint("Coincident", 4, 3, 0, 3))
sketch2.addConstraint(Sketcher.Constraint("Coincident", 6, 3, 5, 3))
sketch2.addConstraint(Sketcher.Constraint("Coincident", 11, 3, 7, 3))
sketch2.addConstraint(Sketcher.Constraint("Coincident", 14, 3, 12, 3))
sketch2.addConstraint(Sketcher.Constraint("Equal", 0, 3))
sketch2.addConstraint(Sketcher.Constraint("Equal", 3, 5))
sketch2.addConstraint(Sketcher.Constraint("Equal", 4, 6))
sketch2.addConstraint(Sketcher.Constraint("Equal", 5, 7))
sketch2.addConstraint(Sketcher.Constraint("Equal", 7, 8))
sketch2.addConstraint(Sketcher.Constraint("Equal", 6, 11))
sketch2.addConstraint(Sketcher.Constraint("Equal", 8, 12))
sketch2.addConstraint(Sketcher.Constraint("Equal", 11, 14))
sketch2.addConstraint(Sketcher.Constraint("Symmetric", 0, 3, 7, 3, -2))
sketch2.addConstraint(Sketcher.Constraint("Symmetric", 5, 3, 12, 3, -2))
sketch2.addConstraint(Sketcher.Constraint("Symmetric", 1, 2, 9, 2, -2))
sketch2.addConstraint(Sketcher.Constraint("Horizontal", 11, 3, 3, 2))
sketch2.addConstraint(Sketcher.Constraint("Horizontal", 3, 2, 7, 2))
sketch2.addConstraint(Sketcher.Constraint("Horizontal", 14, 3, 12, 1))
sketch2.addConstraint(Sketcher.Constraint("Vertical", 6, 3, 7, 3))
sketch2.addConstraint(Sketcher.Constraint("Vertical", 14, 3, 13, 1))
sketch2.addConstraint(Sketcher.Constraint("Equal", 10, 2))
sketch2.addConstraint(Sketcher.Constraint("Diameter", 4, Q("0.11 in")))
sketch2.addConstraint(Sketcher.Constraint("Diameter", 5, Q("0.18 in")))
sketch2.addConstraint(Sketcher.Constraint("DistanceY", -1, 1, 0, 3, Q("0.9 in")))
sketch2.addConstraint(Sketcher.Constraint("DistanceY", 13, 1, -1, 1, Q("0.4 in")))
sketch2.addConstraint(Sketcher.Constraint("DistanceX", -1, 1, 0, 3, Q("1.47 in")))
sketch2.addConstraint(Sketcher.Constraint("DistanceY", -1, 1, 0, 2, Q("0.84 in")))
pad2 = body.newObject("PartDesign::Pad", "Pad001")
pad2.Profile = sketch2
pad2.Length = Q("0.2 in")
pad2.Reversed = True

doc.recompute()
